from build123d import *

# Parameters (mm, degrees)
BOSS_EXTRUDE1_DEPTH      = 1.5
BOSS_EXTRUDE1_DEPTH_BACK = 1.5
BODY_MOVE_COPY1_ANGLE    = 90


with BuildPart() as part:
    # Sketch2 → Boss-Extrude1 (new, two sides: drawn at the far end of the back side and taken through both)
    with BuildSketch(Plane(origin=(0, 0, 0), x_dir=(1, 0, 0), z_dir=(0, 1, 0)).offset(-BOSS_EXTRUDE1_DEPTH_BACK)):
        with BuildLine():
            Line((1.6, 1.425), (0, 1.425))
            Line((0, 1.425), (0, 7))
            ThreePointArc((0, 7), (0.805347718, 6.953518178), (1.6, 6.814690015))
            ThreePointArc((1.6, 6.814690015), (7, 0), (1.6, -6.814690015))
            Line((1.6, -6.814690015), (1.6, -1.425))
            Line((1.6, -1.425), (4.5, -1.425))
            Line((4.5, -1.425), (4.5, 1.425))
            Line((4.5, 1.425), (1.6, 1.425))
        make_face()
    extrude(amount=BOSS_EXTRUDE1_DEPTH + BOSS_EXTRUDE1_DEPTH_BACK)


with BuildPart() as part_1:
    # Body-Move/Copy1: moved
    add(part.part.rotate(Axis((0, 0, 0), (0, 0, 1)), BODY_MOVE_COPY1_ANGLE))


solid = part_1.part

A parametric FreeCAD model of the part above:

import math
import FreeCAD as App
import Part
import Sketcher
from FreeCAD import Vector
Q = App.Units.Quantity

doc = App.newDocument("Part")
body = doc.addObject("PartDesign::Body", "Body")

# Sketch on XZ plane
sketch1 = body.newObject("Sketcher::SketchObject", "Sketch")
sketch1.AttachmentSupport = (doc.getObject("XZ_Plane"), [""])
sketch1.MapMode = "FlatFace"
sketch1.addGeometry([
    Part.LineSegment(Vector(0, -7, 0), Vector(0, -1.4, 0)),  # 0
    Part.LineSegment(Vector(0, -1.4, 0), Vector(4.5, -1.4, 0)),  # 1
    Part.LineSegment(Vector(4.5, -1.4, 0), Vector(4.5, 1.4, 0)),  # 2
    Part.LineSegment(Vector(4.5, 1.4, 0), Vector(1.6, 1.4, 0)),  # 3
    Part.LineSegment(Vector(1.6, 1.4, 0), Vector(1.6, 6.8, 0)),  # 4
    Part.ArcOfCircle(Part.Circle(Vector(0, 0, 0), Vector(0, 0, 1), 7), math.radians(-77), math.radians(77)),  # 5
    Part.ArcOfCircle(Part.Circle(Vector(0, 0, 0), Vector(0, 0, 1), 7), math.radians(-90), math.radians(-76.79)),  # 6
], False)
sketch1.addConstraint([
    Sketcher.Constraint("Coincident", 0, 2, 1, 1),
    Sketcher.Constraint("Coincident", 1, 2, 2, 1),
    Sketcher.Constraint("Coincident", 2, 2, 3, 1),
    Sketcher.Constraint("Coincident", 3, 2, 4, 1),
    Sketcher.Constraint("Coincident", 4, 2, 5, 2),
    Sketcher.Constraint("Tangent", 5, 1, 6, 2),
    Sketcher.Constraint("Coincident", 6, 1, 0, 1),
    Sketcher.Constraint("Vertical", 0),
    Sketcher.Constraint("Horizontal", 1),
    Sketcher.Constraint("Vertical", 2),
    Sketcher.Constraint("Horizontal", 3),
    Sketcher.Constraint("Vertical", 4),
    Sketcher.Constraint("Coincident", 5, 3, -1, 1),
    Sketcher.Constraint("Equal", 5, 6),
    Sketcher.Constraint("PointOnObject", 0, 2, -2),
    Sketcher.Constraint("Vertical", 4, 2, 5, 1),
    Sketcher.Constraint("Radius", 5, Q("7 mm")),
    Sketcher.Constraint("DistanceX", 1, 1, 1, 2, Q("4.5 mm")),
    Sketcher.Constraint("DistanceX", 3, 2, 3, 1, Q("2.9 mm")),
    Sketcher.Constraint("DistanceY", 2, 1, 2, 2, Q("2.85 mm")),
    Sketcher.Constraint("DistanceY", 0, 1, 0, 2, Q("5.575 mm")),
])
pad1 = body.newObject("PartDesign::Pad", "Pad")
pad1.Profile = sketch1
pad1.Type = "TwoLengths"
pad1.Length = 1.5
pad1.Length2 = 1.5
pad1.Reversed = True
body2 = doc.addObject("PartDesign::Body", "Body001")
doc.recompute()

body.Placement = App.Placement(Vector(0, 0, 0), App.Rotation(Vector(0, 0, 1), 90))
boolean = body2.newObject("PartDesign::Boolean", "Boolean")
boolean.Type = "Fuse"
boolean.addObjects([body])

doc.recompute()
